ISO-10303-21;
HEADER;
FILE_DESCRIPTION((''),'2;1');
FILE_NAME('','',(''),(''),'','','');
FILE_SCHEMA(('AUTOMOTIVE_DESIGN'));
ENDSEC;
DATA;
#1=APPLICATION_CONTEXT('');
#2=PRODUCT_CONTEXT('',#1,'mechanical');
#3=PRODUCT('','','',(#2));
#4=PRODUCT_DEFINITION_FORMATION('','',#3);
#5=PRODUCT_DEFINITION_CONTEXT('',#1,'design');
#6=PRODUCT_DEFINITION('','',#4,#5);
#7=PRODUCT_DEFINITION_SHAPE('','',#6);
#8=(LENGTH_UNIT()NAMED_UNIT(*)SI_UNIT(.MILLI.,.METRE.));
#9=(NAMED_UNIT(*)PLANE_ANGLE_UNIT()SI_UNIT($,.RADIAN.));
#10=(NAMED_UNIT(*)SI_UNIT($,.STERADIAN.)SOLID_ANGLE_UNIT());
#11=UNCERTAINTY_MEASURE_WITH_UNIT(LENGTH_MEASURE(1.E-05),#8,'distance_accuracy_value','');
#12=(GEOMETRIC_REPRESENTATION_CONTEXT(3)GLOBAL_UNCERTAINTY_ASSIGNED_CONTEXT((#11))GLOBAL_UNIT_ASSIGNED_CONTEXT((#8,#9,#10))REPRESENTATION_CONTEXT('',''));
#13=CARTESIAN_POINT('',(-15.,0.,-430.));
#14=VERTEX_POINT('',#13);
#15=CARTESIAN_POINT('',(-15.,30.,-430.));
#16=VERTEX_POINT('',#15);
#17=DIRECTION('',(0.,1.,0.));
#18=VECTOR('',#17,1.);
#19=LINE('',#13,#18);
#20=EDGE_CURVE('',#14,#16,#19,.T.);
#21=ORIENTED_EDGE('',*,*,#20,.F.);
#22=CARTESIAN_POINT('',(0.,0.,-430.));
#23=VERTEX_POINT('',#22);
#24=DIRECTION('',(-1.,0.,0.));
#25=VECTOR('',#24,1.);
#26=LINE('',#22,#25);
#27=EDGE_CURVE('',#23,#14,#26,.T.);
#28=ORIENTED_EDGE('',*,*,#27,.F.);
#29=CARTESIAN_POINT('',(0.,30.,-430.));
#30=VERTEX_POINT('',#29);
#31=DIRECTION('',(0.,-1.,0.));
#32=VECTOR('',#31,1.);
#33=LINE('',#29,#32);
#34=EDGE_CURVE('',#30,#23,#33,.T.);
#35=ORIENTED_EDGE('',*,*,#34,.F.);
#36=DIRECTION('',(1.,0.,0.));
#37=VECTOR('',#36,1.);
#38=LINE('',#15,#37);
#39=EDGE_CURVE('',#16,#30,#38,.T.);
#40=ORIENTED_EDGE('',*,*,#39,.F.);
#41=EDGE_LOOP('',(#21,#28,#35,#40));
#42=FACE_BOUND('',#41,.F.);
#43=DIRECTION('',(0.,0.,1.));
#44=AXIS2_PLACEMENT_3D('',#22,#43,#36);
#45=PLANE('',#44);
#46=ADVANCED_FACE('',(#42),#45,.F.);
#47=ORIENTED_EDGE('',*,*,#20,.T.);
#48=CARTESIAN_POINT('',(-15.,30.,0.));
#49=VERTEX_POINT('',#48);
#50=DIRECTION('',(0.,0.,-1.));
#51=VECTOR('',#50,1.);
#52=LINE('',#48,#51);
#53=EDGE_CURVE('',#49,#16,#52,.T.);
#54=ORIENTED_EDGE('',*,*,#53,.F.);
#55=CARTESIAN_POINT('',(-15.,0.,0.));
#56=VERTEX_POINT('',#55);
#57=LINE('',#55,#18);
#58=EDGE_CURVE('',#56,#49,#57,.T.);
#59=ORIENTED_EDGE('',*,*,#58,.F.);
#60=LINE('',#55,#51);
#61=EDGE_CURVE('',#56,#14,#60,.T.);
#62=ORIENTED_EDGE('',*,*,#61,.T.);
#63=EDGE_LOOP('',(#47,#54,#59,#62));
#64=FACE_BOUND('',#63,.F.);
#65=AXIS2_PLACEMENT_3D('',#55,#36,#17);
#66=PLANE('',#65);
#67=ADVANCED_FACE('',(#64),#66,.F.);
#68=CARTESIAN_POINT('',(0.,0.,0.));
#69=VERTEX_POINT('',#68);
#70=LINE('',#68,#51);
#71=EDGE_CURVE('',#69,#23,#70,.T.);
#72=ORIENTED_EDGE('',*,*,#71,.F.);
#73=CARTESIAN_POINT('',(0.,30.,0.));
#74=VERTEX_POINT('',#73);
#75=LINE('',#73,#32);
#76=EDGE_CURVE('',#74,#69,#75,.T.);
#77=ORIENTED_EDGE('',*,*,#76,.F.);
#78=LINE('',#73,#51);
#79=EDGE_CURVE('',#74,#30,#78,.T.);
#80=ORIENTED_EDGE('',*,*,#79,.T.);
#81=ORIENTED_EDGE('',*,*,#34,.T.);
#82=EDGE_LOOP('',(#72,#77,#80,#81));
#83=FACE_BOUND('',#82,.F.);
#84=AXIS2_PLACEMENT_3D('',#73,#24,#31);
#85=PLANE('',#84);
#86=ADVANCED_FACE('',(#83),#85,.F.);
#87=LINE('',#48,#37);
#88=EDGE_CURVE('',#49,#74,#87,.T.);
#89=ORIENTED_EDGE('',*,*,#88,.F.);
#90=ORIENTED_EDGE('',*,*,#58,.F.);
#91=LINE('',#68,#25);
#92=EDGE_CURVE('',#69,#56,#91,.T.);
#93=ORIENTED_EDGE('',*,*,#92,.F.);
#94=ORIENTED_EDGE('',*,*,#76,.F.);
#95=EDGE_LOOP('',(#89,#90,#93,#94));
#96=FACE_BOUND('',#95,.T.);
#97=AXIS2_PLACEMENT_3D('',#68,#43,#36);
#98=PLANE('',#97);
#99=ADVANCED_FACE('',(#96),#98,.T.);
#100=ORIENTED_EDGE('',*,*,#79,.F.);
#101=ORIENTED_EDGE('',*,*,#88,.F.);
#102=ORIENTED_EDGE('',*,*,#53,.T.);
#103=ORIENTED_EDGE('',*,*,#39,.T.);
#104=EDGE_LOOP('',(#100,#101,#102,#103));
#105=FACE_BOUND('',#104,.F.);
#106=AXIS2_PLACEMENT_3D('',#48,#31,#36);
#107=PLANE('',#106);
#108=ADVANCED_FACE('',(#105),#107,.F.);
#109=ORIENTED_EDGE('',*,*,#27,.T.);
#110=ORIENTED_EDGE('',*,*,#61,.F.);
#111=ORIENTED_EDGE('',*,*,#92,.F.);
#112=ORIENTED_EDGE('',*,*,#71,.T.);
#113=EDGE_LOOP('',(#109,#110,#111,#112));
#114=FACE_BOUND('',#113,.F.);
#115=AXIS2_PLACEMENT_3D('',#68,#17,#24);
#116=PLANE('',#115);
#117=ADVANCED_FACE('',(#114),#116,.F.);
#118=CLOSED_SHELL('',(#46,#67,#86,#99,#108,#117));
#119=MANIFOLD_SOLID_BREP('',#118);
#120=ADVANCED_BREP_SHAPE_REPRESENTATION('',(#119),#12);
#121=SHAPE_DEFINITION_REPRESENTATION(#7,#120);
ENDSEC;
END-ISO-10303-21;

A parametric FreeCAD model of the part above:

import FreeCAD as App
import Part
import Sketcher
Q = App.Units.Quantity

doc = App.newDocument("Part")
params = doc.addObject("Spreadsheet::Sheet", "Params")
for row, (alias, value) in enumerate([
    ("sketch1_width", "15 mm"),
    ("sketch1_height", "30 mm"),
    ("pad1_length", "430 mm"),
], start=1):
    params.set(f"A{row}", alias)
    params.set(f"B{row}", "=" + value)
    params.setAlias(f"B{row}", alias)

body = doc.addObject("PartDesign::Body", "Body")

# Sketch on XY plane
sketch1 = body.newObject("Sketcher::SketchObject", "Sketch")
sketch1.AttachmentSupport = (doc.getObject("XY_Plane"), [""])
sketch1.MapMode = "FlatFace"
sketch1.addGeometry(Part.LineSegment(App.Vector(-15, 0, 0), App.Vector(0, 0, 0)), False)
sketch1.addGeometry(Part.LineSegment(App.Vector(0, 0, 0), App.Vector(0, 30, 0)), False)
sketch1.addGeometry(Part.LineSegment(App.Vector(0, 30, 0), App.Vector(-15, 30, 0)), False)
sketch1.addGeometry(Part.LineSegment(App.Vector(-15, 30, 0), App.Vector(-15, 0, 0)), False)
sketch1.addConstraint(Sketcher.Constraint("Coincident", 0, 2, 1, 1))
sketch1.addConstraint(Sketcher.Constraint("Coincident", 1, 2, 2, 1))
sketch1.addConstraint(Sketcher.Constraint("Coincident", 2, 2, 3, 1))
sketch1.addConstraint(Sketcher.Constraint("Coincident", 3, 2, 0, 1))
sketch1.addConstraint(Sketcher.Constraint("Horizontal", 0))
sketch1.addConstraint(Sketcher.Constraint("Vertical", 1))
sketch1.addConstraint(Sketcher.Constraint("Horizontal", 2))
sketch1.addConstraint(Sketcher.Constraint("Vertical", 3))
sketch1.addConstraint(Sketcher.Constraint("Coincident", 0, 2, -1, 1))
sketch1.addConstraint(Sketcher.Constraint("DistanceX", 0, 1, 0, 2, Q("15 mm")))
sketch1.addConstraint(Sketcher.Constraint("DistanceY", 1, 1, 1, 2, Q("30 mm")))
sketch1.setExpression("Constraints[9]", "Params.sketch1_width")
sketch1.setExpression("Constraints[10]", "Params.sketch1_height")
pad1 = body.newObject("PartDesign::Pad", "Pad")
pad1.Profile = sketch1
pad1.setExpression("Length", "Params.pad1_length")
pad1.Reversed = True

doc.recompute()
